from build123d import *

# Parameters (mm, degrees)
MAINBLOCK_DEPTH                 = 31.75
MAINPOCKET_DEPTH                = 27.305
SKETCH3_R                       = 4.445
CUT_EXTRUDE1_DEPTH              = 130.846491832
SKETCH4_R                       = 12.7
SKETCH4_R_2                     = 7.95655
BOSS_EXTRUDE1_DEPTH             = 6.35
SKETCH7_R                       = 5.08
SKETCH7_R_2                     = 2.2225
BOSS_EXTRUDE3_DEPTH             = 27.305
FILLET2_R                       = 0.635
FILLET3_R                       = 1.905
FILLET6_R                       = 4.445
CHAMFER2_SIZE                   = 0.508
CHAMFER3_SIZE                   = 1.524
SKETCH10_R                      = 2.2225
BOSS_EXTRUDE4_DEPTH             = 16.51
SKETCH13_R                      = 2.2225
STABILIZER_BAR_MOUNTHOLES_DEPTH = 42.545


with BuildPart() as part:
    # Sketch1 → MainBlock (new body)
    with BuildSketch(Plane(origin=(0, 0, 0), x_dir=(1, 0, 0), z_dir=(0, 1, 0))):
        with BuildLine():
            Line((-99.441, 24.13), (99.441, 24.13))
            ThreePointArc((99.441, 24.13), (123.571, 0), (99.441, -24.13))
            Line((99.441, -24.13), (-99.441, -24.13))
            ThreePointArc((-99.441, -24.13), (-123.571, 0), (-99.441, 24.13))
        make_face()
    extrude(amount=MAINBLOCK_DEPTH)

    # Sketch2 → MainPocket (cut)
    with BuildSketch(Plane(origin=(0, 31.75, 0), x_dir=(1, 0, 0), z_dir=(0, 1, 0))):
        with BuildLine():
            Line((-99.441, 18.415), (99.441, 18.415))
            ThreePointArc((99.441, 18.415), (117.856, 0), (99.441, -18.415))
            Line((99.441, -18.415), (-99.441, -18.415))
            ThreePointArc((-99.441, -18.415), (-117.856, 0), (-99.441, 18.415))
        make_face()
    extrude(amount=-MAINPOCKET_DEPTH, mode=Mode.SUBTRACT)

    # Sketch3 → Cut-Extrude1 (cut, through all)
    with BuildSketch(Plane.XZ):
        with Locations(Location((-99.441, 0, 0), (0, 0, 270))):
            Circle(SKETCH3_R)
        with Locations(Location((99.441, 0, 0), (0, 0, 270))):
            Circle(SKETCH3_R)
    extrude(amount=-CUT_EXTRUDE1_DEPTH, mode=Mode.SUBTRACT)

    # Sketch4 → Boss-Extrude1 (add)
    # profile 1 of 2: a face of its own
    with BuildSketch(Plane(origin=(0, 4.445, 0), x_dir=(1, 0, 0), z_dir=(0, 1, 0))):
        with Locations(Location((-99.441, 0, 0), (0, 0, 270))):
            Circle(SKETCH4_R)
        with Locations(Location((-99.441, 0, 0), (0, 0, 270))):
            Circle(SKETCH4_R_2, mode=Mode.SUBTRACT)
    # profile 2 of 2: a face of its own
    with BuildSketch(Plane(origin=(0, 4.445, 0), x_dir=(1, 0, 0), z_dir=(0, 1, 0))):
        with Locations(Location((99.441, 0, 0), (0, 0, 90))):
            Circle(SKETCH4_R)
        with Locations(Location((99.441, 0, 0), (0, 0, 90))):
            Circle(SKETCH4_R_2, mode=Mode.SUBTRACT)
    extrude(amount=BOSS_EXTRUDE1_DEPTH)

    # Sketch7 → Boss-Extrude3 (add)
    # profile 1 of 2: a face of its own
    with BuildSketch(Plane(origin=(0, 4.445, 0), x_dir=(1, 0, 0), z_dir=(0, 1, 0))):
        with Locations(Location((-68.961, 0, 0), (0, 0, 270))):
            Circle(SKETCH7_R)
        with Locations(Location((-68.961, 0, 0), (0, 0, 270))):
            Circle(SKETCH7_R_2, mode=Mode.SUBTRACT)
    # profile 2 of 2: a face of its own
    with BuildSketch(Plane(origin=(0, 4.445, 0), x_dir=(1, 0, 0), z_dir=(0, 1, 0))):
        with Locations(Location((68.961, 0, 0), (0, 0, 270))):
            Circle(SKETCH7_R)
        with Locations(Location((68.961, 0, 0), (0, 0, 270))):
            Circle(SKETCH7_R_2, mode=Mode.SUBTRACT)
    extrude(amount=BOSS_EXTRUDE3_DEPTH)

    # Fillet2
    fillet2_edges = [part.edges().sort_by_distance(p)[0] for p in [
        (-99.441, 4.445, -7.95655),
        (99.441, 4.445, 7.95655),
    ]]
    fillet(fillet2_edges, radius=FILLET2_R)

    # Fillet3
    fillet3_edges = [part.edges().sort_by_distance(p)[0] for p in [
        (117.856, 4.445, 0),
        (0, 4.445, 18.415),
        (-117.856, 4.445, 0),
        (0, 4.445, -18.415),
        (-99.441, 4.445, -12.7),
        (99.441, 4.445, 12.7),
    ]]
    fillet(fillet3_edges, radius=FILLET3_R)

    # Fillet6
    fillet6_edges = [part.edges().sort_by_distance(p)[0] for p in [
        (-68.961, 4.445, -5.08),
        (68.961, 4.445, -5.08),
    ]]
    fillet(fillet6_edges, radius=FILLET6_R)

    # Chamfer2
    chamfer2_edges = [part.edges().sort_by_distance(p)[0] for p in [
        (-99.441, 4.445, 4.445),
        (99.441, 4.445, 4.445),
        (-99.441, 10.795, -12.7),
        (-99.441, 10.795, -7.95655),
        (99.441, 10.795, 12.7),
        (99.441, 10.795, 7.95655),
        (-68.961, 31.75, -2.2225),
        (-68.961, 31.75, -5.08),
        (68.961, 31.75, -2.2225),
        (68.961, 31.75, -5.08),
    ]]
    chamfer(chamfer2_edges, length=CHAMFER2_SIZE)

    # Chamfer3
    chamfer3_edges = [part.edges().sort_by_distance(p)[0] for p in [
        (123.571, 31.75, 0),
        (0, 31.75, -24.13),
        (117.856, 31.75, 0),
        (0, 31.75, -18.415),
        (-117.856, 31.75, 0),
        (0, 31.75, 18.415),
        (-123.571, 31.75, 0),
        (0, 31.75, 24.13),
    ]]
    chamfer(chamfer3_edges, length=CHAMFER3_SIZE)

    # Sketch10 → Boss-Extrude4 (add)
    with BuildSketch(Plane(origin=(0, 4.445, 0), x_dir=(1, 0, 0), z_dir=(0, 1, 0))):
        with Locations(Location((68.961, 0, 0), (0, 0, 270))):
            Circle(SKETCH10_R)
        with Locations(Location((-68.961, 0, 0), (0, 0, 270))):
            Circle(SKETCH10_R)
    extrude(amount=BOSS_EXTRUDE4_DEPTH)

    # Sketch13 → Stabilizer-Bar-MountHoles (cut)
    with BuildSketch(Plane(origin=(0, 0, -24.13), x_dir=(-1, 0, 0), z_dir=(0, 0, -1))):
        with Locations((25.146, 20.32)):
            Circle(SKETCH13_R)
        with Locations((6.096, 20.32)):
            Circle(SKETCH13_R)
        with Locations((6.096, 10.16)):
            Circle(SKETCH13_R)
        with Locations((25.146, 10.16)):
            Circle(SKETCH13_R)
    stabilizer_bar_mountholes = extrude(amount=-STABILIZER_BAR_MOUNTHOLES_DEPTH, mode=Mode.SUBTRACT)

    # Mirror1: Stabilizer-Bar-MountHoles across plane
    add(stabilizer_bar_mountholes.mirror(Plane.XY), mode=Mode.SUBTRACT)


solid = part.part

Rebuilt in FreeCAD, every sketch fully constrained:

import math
import FreeCAD as App
import Part
import Sketcher

V = App.Vector
Q = App.Units.Quantity


def edges_at(feature, points):
    """Names of the edges that pass closest to the given points."""
    edges = feature.Shape.Edges
    near = lambda p: min(range(len(edges)), key=lambda i: edges[i].distToShape(Part.Vertex(*p))[0])
    return sorted({f"Edge{near(p) + 1}" for p in points})

doc = App.newDocument("Part")
params = doc.addObject("Spreadsheet::Sheet", "Params")
for row, (alias, value) in enumerate([
    ("sketch1_radius", "0.95 in"),
    ("sketch1_width", "7.83 in"),
    ("pad1_length", "1.25 in"),
    ("sketch2_radius", "0.725 in"),
    ("sketch2_width", "7.83 in"),
    ("pocket1_length", "1.075 in"),
    ("sketch3_diameter", "0.35 in"),
    ("sketch4_diameter", "1 in"),
    ("pad2_length", "0.25 in"),
    ("sketch5_diameter", "0.4 in"),
    ("sketch5_diameter2", "0.175 in"),
    ("pad3_length", "1.075 in"),
    ("fillet_radius", "0.025 in"),
    ("fillet2_radius", "0.075 in"),
    ("fillet3_radius", "0.175 in"),
    ("chamfer_size", "0.02 in"),
    ("chamfer2_size", "0.06 in"),
    ("sketch6_diameter", "0.175 in"),
    ("pad4_length", "0.65 in"),
    ("sketch7_diameter", "0.175 in"),
    ("pocket3_length", "1.675 in"),
], start=1):
    params.set(f"A{row}", alias)
    params.set(f"B{row}", "=" + value)
    params.setAlias(f"B{row}", alias)

body = doc.addObject("PartDesign::Body", "Body")

sketch1 = body.newObject("Sketcher::SketchObject", "Sketch")
sketch1.AttachmentSupport = (doc.getObject("XZ_Plane"), [""])
sketch1.MapMode = "FlatFace"
sketch1.addGeometry([
    Part.LineSegment(V(99.441, -24.13, 0), V(-99.441, -24.13, 0)),
    Part.ArcOfCircle(Part.Circle(V(-99.441, 0, 0), V(0, 0, 1), 24.13), math.radians(90), math.radians(270)),
    Part.LineSegment(V(-99.441, 24.13, 0), V(99.441, 24.13, 0)),
    Part.ArcOfCircle(Part.Circle(V(99.441, 0, 0), V(0, 0, 1), 24.13), math.radians(-90), math.radians(90)),
], False)
sketch1.addConstraint([
    Sketcher.Constraint("Tangent", 0, 2, 1, 2),
    Sketcher.Constraint("Tangent", 1, 1, 2, 1),
    Sketcher.Constraint("Tangent", 2, 2, 3, 2),
    Sketcher.Constraint("Tangent", 3, 1, 0, 1),
    Sketcher.Constraint("Horizontal", 0),
    Sketcher.Constraint("Horizontal", 2),
    Sketcher.Constraint("Symmetric", 1, 3, 3, 3, -1, 1),
    Sketcher.Constraint("Radius", 1, Q("0.95 in")),
    Sketcher.Constraint("DistanceX", 0, 2, 0, 1, Q("7.83 in")),
])
sketch1.setExpression("Constraints[7]", "Params.sketch1_radius")
sketch1.setExpression("Constraints[8]", "Params.sketch1_width")
pad1 = body.newObject("PartDesign::Pad", "Pad")
pad1.Profile = sketch1
pad1.setExpression("Length", "Params.pad1_length")
pad1.Reversed = True

sketch2 = body.newObject("Sketcher::SketchObject", "Sketch001")
sketch2.AttachmentSupport = (doc.getObject("XZ_Plane"), [""])
sketch2.MapMode = "FlatFace"
sketch2.AttachmentOffset = App.Placement(V(0, 0, -1.25 * 25.4), App.Rotation())
sketch2.addGeometry([
    Part.LineSegment(V(99.441, -18.415, 0), V(-99.441, -18.415, 0)),
    Part.ArcOfCircle(Part.Circle(V(-99.441, 0, 0), V(0, 0, 1), 18.415), math.radians(90), math.radians(270)),
    Part.LineSegment(V(-99.441, 18.415, 0), V(99.441, 18.415, 0)),
    Part.ArcOfCircle(Part.Circle(V(99.441, 0, 0), V(0, 0, 1), 18.415), math.radians(-90), math.radians(90)),
], False)
sketch2.addConstraint([
    Sketcher.Constraint("Tangent", 0, 2, 1, 2),
    Sketcher.Constraint("Tangent", 1, 1, 2, 1),
    Sketcher.Constraint("Tangent", 2, 2, 3, 2),
    Sketcher.Constraint("Tangent", 3, 1, 0, 1),
    Sketcher.Constraint("Horizontal", 0),
    Sketcher.Constraint("Horizontal", 2),
    Sketcher.Constraint("Symmetric", 1, 3, 3, 3, -1, 1),
    Sketcher.Constraint("Radius", 1, Q("0.725 in")),
    Sketcher.Constraint("DistanceX", 0, 2, 0, 1, Q("7.83 in")),
])
sketch2.setExpression("Constraints[7]", "Params.sketch2_radius")
sketch2.setExpression("Constraints[8]", "Params.sketch2_width")
pocket1 = body.newObject("PartDesign::Pocket", "Pocket")
pocket1.Profile = sketch2
pocket1.setExpression("Length", "Params.pocket1_length")
pocket1.Reversed = True

sketch3 = body.newObject("Sketcher::SketchObject", "Sketch002")
sketch3.AttachmentSupport = (doc.getObject("XZ_Plane"), [""])
sketch3.MapMode = "FlatFace"
sketch3.addGeometry([
    Part.Circle(V(-99.441, 0, 0), V(0, 0, 1), 4.445),
    Part.Circle(V(99.441, 0, 0), V(0, 0, 1), 4.445),
], False)
sketch3.addConstraint([
    Sketcher.Constraint("Equal", 0, 1),
    Sketcher.Constraint("Symmetric", 0, 3, 1, 3, -1, 1),
    Sketcher.Constraint("PointOnObject", 0, 3, -1),
    Sketcher.Constraint("Diameter", 0, Q("0.35 in")),
    Sketcher.Constraint("DistanceX", 0, 3, 1, 3, Q("7.83 in")),
])
sketch3.setExpression("Constraints[3]", "Params.sketch3_diameter")
pocket2 = body.newObject("PartDesign::Pocket", "Pocket001")
pocket2.Profile = sketch3
pocket2.Type = "ThroughAll"

sketch4 = body.newObject("Sketcher::SketchObject", "Sketch003")
sketch4.AttachmentSupport = (doc.getObject("XZ_Plane"), [""])
sketch4.MapMode = "FlatFace"
sketch4.AttachmentOffset = App.Placement(V(0, 0, -0.175 * 25.4), App.Rotation())
sketch4.addGeometry([
    Part.Circle(V(-99.441, 0, 0), V(0, 0, 1), 12.7),
    Part.Circle(V(-99.441, 0, 0), V(0, 0, 1), 7.95655),
    Part.Circle(V(99.441, 0, 0), V(0, 0, 1), 12.7),
    Part.Circle(V(99.441, 0, 0), V(0, 0, 1), 7.95655),
], False)
sketch4.addConstraint([
    Sketcher.Constraint("Coincident", 1, 3, 0, 3),
    Sketcher.Constraint("Coincident", 3, 3, 2, 3),
    Sketcher.Constraint("Equal", 0, 2),
    Sketcher.Constraint("Equal", 1, 3),
    Sketcher.Constraint("Symmetric", 0, 3, 2, 3, -1, 1),
    Sketcher.Constraint("PointOnObject", 0, 3, -1),
    Sketcher.Constraint("Diameter", 0, Q("1 in")),
    Sketcher.Constraint("Diameter", 1, Q("0.6265 in")),
    Sketcher.Constraint("DistanceX", 0, 3, 2, 3, Q("7.83 in")),
])
sketch4.setExpression("Constraints[6]", "Params.sketch4_diameter")
pad2 = body.newObject("PartDesign::Pad", "Pad001")
pad2.Profile = sketch4
pad2.setExpression("Length", "Params.pad2_length")
pad2.Reversed = True

sketch5 = body.newObject("Sketcher::SketchObject", "Sketch004")
sketch5.AttachmentSupport = (doc.getObject("XZ_Plane"), [""])
sketch5.MapMode = "FlatFace"
sketch5.AttachmentOffset = App.Placement(V(0, 0, -0.175 * 25.4), App.Rotation())
sketch5.addGeometry([
    Part.Circle(V(-68.961, 0, 0), V(0, 0, 1), 5.08),
    Part.Circle(V(-68.961, 0, 0), V(0, 0, 1), 2.2225),
    Part.Circle(V(68.961, 0, 0), V(0, 0, 1), 5.08),
    Part.Circle(V(68.961, 0, 0), V(0, 0, 1), 2.2225),
], False)
sketch5.addConstraint([
    Sketcher.Constraint("Coincident", 1, 3, 0, 3),
    Sketcher.Constraint("Coincident", 3, 3, 2, 3),
    Sketcher.Constraint("Equal", 0, 2),
    Sketcher.Constraint("Equal", 1, 3),
    Sketcher.Constraint("Symmetric", 0, 3, 2, 3, -1, 1),
    Sketcher.Constraint("PointOnObject", 0, 3, -1),
    Sketcher.Constraint("Diameter", 0, Q("0.4 in")),
    Sketcher.Constraint("Diameter", 1, Q("0.175 in")),
    Sketcher.Constraint("DistanceX", 0, 3, 2, 3, Q("5.43 in")),
])
sketch5.setExpression("Constraints[6]", "Params.sketch5_diameter")
sketch5.setExpression("Constraints[7]", "Params.sketch5_diameter2")
pad3 = body.newObject("PartDesign::Pad", "Pad002")
pad3.Profile = sketch5
pad3.setExpression("Length", "Params.pad3_length")
pad3.Reversed = True
doc.recompute()

fillet = body.newObject("PartDesign::Fillet", "Fillet")
fillet.Base = (pad3, edges_at(pad3, [(-99.441, 4.445, -7.957), (99.441, 4.445, 7.957)]))
fillet.setExpression("Radius", "Params.fillet_radius")
doc.recompute()

fillet2 = body.newObject("PartDesign::Fillet", "Fillet001")
fillet2.Base = (fillet, edges_at(fillet, [
    (117.856, 4.445, 0),
    (0, 4.445, 18.415),
    (-117.856, 4.445, 0),
    (0, 4.445, -18.415),
    (-99.441, 4.445, -12.7),
    (99.441, 4.445, 12.7),
]))
fillet2.setExpression("Radius", "Params.fillet2_radius")
doc.recompute()

fillet3 = body.newObject("PartDesign::Fillet", "Fillet002")
fillet3.Base = (fillet2, edges_at(fillet2, [(-68.961, 4.445, -5.08), (68.961, 4.445, -5.08)]))
fillet3.setExpression("Radius", "Params.fillet3_radius")
doc.recompute()

chamfer = body.newObject("PartDesign::Chamfer", "Chamfer")
chamfer.Base = (fillet3, edges_at(fillet3, [
    (-99.441, 4.445, 4.445),
    (99.441, 4.445, 4.445),
    (-99.441, 10.795, -12.7),
    (-99.441, 10.795, -7.957),
    (99.441, 10.795, 12.7),
    (99.441, 10.795, 7.957),
    (-68.961, 31.75, -2.223),
    (-68.961, 31.75, -5.08),
    (68.961, 31.75, -2.223),
    (68.961, 31.75, -5.08),
]))
chamfer.setExpression("Size", "Params.chamfer_size")
doc.recompute()

chamfer2 = body.newObject("PartDesign::Chamfer", "Chamfer001")
chamfer2.Base = (chamfer, edges_at(chamfer, [
    (123.571, 31.75, 0),
    (0, 31.75, -24.13),
    (117.856, 31.75, 0),
    (0, 31.75, -18.415),
    (-117.856, 31.75, 0),
    (0, 31.75, 18.415),
    (-123.571, 31.75, 0),
    (0, 31.75, 24.13),
]))
chamfer2.setExpression("Size", "Params.chamfer2_size")

sketch6 = body.newObject("Sketcher::SketchObject", "Sketch005")
sketch6.AttachmentSupport = (doc.getObject("XZ_Plane"), [""])
sketch6.MapMode = "FlatFace"
sketch6.AttachmentOffset = App.Placement(V(0, 0, -0.175 * 25.4), App.Rotation())
sketch6.addGeometry([
    Part.Circle(V(68.961, 0, 0), V(0, 0, 1), 2.2225),
    Part.Circle(V(-68.961, 0, 0), V(0, 0, 1), 2.2225),
], False)
sketch6.addConstraint([
    Sketcher.Constraint("Equal", 0, 1),
    Sketcher.Constraint("Symmetric", 0, 3, 1, 3, -1, 1),
    Sketcher.Constraint("PointOnObject", 0, 3, -1),
    Sketcher.Constraint("Diameter", 0, Q("0.175 in")),
    Sketcher.Constraint("DistanceX", 1, 3, 0, 3, Q("5.43 in")),
])
sketch6.setExpression("Constraints[3]", "Params.sketch6_diameter")
pad4 = body.newObject("PartDesign::Pad", "Pad003")
pad4.Profile = sketch6
pad4.setExpression("Length", "Params.pad4_length")
pad4.Reversed = True

sketch7 = body.newObject("Sketcher::SketchObject", "Sketch006")
sketch7.AttachmentSupport = (doc.getObject("XY_Plane"), [""])
sketch7.MapMode = "FlatFace"
sketch7.AttachmentOffset = App.Placement(V(0, 0, -0.95 * 25.4), App.Rotation())
sketch7.addGeometry([
    Part.Circle(V(-25.146, 20.32, 0), V(0, 0, 1), 2.2225),
    Part.Circle(V(-6.096, 20.32, 0), V(0, 0, 1), 2.2225),
    Part.Circle(V(-6.096, 10.16, 0), V(0, 0, 1), 2.2225),
    Part.Circle(V(-25.146, 10.16, 0), V(0, 0, 1), 2.2225),
], False)
sketch7.addConstraint([
    Sketcher.Constraint("Equal", 0, 1),
    Sketcher.Constraint("Equal", 1, 2),
    Sketcher.Constraint("Equal", 2, 3),
    Sketcher.Constraint("Horizontal", 0, 3, 1, 3),
    Sketcher.Constraint("Horizontal", 2, 3, 3, 3),
    Sketcher.Constraint("Vertical", 1, 3, 2, 3),
    Sketcher.Constraint("Vertical", 0, 3, 3, 3),
    Sketcher.Constraint("Diameter", 0, Q("0.175 in")),
    Sketcher.Constraint("DistanceY", -1, 1, 0, 3, Q("0.8 in")),
    Sketcher.Constraint("DistanceY", -1, 1, 2, 3, Q("0.4 in")),
    Sketcher.Constraint("DistanceX", 0, 3, -1, 1, Q("0.99 in")),
    Sketcher.Constraint("DistanceX", 1, 3, -1, 1, Q("0.24 in")),
])
sketch7.setExpression("Constraints[7]", "Params.sketch7_diameter")
pocket3 = body.newObject("PartDesign::Pocket", "Pocket002")
pocket3.Profile = sketch7
pocket3.setExpression("Length", "Params.pocket3_length")
pocket3.Reversed = True
doc.recompute()

mirrored = body.newObject("PartDesign::Mirrored", "Mirrored")
mirrored.Originals = [pocket3]
mirrored.MirrorPlane = (doc.getObject("XY_Plane"), [""])
body.Tip = mirrored

doc.recompute()
